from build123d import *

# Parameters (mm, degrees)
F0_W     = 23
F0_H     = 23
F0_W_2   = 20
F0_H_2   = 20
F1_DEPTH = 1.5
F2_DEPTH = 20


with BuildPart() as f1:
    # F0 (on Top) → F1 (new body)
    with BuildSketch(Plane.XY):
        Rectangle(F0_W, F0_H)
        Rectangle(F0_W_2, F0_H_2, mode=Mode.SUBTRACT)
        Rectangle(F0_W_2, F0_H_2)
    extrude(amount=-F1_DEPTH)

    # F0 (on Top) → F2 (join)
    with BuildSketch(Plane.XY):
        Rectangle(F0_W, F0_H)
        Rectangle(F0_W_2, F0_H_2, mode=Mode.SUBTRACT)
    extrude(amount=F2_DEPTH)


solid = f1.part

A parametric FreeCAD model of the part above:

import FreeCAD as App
import Part
import Sketcher
from FreeCAD import Vector
Q = App.Units.Quantity


def add_polygon(sketch, points):
    """Adds a closed chain of lines whose ends are joined by coincident constraints."""
    first, n = sketch.GeometryCount, len(points)
    for a, b in zip(points, points[1:] + points[:1]):
        sketch.addGeometry(Part.LineSegment(App.Vector(*a, 0), App.Vector(*b, 0)), False)
    for i in range(n):
        sketch.addConstraint(Sketcher.Constraint("Coincident", first + i, 2, first + (i + 1) % n, 1))

doc = App.newDocument("Part")
body = doc.addObject("PartDesign::Body", "Body")

sketch1 = body.newObject("Sketcher::SketchObject", "Sketch")
sketch1.AttachmentSupport = (doc.getObject("XY_Plane"), [""])
sketch1.MapMode = "FlatFace"
add_polygon(sketch1, [(-11.5, 11.5), (-11.5, -11.5), (11.5, -11.5), (11.5, 11.5)])
sketch1.addConstraint([
    Sketcher.Constraint("Vertical", 0),
    Sketcher.Constraint("Horizontal", 1),
    Sketcher.Constraint("Vertical", 2),
    Sketcher.Constraint("Horizontal", 3),
    Sketcher.Constraint("Symmetric", 0, 2, 2, 2, -1, 1),
    Sketcher.Constraint("Equal", 3, 0),
    Sketcher.Constraint("DistanceX", 1, 1, 1, 2, Q("23 mm")),
])
pad1 = body.newObject("PartDesign::Pad", "Pad")
pad1.Profile = sketch1
pad1.Length = 1.5
pad1.Reversed = True

sketch2 = body.newObject("Sketcher::SketchObject", "Sketch001")
sketch2.AttachmentSupport = (doc.getObject("XY_Plane"), [""])
sketch2.MapMode = "FlatFace"
add_polygon(sketch2, [(-11.5, 11.5), (-11.5, -11.5), (11.5, -11.5), (11.5, 11.5)])
add_polygon(sketch2, [(10, -10), (-10, -10), (-10, 10), (10, 10)])
sketch2.addConstraint([
    Sketcher.Constraint("Vertical", 0),
    Sketcher.Constraint("Horizontal", 1),
    Sketcher.Constraint("Vertical", 2),
    Sketcher.Constraint("Horizontal", 3),
    Sketcher.Constraint("Horizontal", 4),
    Sketcher.Constraint("Vertical", 5),
    Sketcher.Constraint("Horizontal", 6),
    Sketcher.Constraint("Vertical", 7),
    Sketcher.Constraint("Symmetric", 0, 2, 2, 2, -1, 1),
    Sketcher.Constraint("Symmetric", 4, 2, 6, 2, -1, 1),
    Sketcher.Constraint("Equal", 3, 0),
    Sketcher.Constraint("Equal", 6, 5),
    Sketcher.Constraint("DistanceX", 1, 1, 1, 2, Q("23 mm")),
    Sketcher.Constraint("DistanceX", 4, 2, 4, 1, Q("20 mm")),
])
pad2 = body.newObject("PartDesign::Pad", "Pad001")
pad2.Profile = sketch2
pad2.Length = 20

doc.recompute()
